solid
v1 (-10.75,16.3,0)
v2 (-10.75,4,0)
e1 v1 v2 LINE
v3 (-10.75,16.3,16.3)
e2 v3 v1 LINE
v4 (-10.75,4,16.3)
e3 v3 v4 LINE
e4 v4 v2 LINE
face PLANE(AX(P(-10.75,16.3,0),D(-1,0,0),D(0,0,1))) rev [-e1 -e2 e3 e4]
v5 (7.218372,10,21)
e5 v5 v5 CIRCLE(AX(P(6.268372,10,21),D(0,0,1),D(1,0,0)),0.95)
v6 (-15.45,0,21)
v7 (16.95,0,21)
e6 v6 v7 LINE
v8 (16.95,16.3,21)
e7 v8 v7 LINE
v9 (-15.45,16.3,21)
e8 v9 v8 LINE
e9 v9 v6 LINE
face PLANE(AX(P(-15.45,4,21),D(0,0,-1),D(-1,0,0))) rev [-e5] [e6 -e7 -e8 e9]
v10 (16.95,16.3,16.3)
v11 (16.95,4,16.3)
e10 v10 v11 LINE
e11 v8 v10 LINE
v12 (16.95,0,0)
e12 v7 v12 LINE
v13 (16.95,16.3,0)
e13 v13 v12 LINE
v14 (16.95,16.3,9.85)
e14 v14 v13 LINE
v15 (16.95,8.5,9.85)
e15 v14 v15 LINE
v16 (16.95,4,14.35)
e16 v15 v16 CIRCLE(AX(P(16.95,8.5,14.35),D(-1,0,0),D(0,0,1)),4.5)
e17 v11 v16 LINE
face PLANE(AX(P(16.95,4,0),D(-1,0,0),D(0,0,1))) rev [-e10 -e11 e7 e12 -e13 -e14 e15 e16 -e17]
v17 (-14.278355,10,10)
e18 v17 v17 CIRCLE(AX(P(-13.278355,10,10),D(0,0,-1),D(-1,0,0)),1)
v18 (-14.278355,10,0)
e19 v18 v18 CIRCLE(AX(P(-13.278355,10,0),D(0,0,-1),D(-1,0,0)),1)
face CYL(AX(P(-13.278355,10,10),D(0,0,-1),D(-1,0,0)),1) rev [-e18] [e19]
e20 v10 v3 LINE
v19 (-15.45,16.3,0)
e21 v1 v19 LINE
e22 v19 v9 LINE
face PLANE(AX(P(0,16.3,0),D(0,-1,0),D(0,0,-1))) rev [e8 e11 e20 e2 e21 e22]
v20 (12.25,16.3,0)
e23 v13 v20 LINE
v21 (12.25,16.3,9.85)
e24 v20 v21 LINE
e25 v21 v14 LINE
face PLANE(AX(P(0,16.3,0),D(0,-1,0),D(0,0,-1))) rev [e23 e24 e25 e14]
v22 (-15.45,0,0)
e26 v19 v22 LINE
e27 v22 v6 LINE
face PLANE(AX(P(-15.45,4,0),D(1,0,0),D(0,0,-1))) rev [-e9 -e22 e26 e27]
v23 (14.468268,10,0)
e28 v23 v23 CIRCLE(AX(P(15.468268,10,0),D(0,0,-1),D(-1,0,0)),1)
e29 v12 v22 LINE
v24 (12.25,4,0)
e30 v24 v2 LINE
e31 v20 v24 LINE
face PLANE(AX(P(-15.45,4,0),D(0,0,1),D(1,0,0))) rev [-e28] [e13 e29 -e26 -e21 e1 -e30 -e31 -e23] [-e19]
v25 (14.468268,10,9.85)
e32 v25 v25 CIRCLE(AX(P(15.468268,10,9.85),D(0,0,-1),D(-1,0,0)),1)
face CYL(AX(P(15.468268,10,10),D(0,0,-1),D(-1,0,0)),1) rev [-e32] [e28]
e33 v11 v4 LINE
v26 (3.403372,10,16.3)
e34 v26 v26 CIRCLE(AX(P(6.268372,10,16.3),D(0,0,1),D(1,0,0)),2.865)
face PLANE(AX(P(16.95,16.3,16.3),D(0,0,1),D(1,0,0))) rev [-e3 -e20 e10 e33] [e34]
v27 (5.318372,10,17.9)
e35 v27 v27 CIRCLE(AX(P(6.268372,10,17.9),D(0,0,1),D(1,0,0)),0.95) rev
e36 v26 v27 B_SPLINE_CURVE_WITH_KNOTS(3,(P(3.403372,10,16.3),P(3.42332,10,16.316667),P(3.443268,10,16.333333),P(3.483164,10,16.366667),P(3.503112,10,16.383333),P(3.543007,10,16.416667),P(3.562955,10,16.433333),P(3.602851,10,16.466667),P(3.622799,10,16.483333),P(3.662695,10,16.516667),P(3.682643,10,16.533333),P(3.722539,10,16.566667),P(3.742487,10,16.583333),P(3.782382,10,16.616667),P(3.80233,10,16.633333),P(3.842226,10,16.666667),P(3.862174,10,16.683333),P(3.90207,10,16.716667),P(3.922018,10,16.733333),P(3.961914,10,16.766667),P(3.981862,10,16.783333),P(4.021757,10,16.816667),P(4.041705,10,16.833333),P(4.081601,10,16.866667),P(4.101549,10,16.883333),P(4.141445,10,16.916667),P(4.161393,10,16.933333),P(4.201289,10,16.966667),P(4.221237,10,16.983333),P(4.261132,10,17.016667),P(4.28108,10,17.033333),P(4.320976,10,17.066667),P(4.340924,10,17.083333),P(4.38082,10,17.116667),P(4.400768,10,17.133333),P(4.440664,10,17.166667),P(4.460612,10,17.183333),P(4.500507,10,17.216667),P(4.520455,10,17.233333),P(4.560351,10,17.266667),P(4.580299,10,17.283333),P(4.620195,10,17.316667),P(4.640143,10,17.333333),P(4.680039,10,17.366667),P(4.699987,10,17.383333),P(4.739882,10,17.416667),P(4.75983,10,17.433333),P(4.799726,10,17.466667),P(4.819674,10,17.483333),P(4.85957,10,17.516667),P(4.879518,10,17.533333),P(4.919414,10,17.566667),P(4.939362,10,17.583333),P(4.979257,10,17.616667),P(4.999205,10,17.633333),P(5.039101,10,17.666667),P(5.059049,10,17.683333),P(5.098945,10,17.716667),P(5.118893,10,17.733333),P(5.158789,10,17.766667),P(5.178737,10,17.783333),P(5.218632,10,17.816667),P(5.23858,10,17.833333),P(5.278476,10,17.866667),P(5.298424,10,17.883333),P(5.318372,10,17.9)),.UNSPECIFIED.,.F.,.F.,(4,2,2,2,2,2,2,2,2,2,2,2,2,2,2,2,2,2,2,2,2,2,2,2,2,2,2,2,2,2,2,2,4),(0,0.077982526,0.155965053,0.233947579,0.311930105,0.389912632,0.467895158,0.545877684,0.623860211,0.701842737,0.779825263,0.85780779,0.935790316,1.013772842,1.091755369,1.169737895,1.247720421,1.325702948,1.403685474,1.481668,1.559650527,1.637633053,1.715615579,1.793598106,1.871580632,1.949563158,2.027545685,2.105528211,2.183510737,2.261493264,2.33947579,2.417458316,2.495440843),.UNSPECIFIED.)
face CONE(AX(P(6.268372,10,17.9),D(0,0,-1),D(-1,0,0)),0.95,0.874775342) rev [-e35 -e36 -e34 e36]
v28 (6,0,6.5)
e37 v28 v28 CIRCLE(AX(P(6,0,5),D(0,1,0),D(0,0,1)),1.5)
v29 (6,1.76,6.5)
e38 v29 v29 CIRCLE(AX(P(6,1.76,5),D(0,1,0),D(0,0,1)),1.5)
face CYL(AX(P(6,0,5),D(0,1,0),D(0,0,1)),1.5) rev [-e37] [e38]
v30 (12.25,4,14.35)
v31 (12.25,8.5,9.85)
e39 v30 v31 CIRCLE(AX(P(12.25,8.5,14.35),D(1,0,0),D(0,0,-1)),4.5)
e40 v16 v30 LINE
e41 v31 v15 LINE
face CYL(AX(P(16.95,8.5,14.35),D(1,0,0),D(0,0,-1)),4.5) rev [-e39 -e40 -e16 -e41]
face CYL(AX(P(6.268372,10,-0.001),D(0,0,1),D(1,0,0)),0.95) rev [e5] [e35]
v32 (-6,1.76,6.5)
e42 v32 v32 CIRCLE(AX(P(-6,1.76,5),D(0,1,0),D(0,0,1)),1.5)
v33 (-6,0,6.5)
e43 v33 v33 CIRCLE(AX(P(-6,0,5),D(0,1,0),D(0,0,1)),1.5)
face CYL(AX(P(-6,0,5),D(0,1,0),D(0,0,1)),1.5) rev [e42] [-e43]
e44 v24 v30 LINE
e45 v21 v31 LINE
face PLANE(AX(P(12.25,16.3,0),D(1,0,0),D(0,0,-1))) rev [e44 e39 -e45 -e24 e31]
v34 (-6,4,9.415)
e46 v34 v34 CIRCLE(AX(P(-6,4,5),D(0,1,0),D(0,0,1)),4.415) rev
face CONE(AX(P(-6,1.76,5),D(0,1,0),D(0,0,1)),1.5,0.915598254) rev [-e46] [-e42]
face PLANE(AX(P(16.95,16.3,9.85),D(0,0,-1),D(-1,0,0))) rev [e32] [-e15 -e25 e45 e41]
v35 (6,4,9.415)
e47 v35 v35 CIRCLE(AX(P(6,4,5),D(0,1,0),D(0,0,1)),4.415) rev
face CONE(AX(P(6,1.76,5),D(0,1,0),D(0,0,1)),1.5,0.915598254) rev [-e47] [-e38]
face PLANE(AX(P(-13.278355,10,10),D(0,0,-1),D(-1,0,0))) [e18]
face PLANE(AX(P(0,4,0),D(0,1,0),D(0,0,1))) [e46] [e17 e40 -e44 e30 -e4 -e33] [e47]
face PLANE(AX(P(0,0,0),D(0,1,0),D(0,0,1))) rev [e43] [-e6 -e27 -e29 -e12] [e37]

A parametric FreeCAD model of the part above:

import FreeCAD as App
import Part
import Sketcher


def edges_at(feature, points):
    """Names of the edges that pass closest to the given points."""
    edges = feature.Shape.Edges
    near = lambda p: min(range(len(edges)), key=lambda i: edges[i].distToShape(Part.Vertex(*p))[0])
    return sorted({f"Edge{near(p) + 1}" for p in points})

doc = App.newDocument("Part")
params = doc.addObject("Spreadsheet::Sheet", "Params")
for row, (alias, value) in enumerate([
    ("sketch1_height", "21 mm"),
    ("sketch1_width", "32.4 mm"),
    ("pad1_length", "4 mm"),
    ("sketch2_height", "21 mm"),
    ("sketch2_width", "4.7 mm"),
    ("sketch2_width2", "32.4 mm"),
    ("sketch2_height2", "9.85 mm"),
    ("pad2_length", "12.3 mm"),
    ("sketch3_diameter", "1.9 mm"),
    ("chamfer_size", "1.915 mm"),
    ("chamfer_size2", "1.6 mm"),
    ("sketch4_diameter", "2 mm"),
    ("pocket2_length", "10 mm"),
    ("fillet_radius", "4.5 mm"),
    ("sketch5_diameter", "3 mm"),
    ("chamfer2_size", "2.915 mm"),
    ("chamfer2_size2", "2.24 mm"),
], start=1):
    params.set(f"A{row}", alias)
    params.set(f"B{row}", "=" + value)
    params.setAlias(f"B{row}", alias)

body = doc.addObject("PartDesign::Body", "Body")

# Sketch on XZ plane
sketch1 = body.newObject("Sketcher::SketchObject", "Sketch")
sketch1.AttachmentSupport = (doc.getObject("XZ_Plane"), [""])
sketch1.MapMode = "FlatFace"
sketch1.addGeometry([
    Part.LineSegment(App.Vector(-15, 0, 0), App.Vector(-15, 21, 0)),
    Part.LineSegment(App.Vector(-15, 21, 0), App.Vector(17, 21, 0)),
    Part.LineSegment(App.Vector(17, 21, 0), App.Vector(17, 0, 0)),
    Part.LineSegment(App.Vector(17, 0, 0), App.Vector(-15, 0, 0)),
], False)
sketch1.addConstraint([
    Sketcher.Constraint("Coincident", 0, 2, 1, 1),
    Sketcher.Constraint("Coincident", 1, 2, 2, 1),
    Sketcher.Constraint("Coincident", 2, 2, 3, 1),
    Sketcher.Constraint("Coincident", 3, 2, 0, 1),
    Sketcher.Constraint("Vertical", 0),
    Sketcher.Constraint("Horizontal", 1),
    Sketcher.Constraint("Vertical", 2),
    Sketcher.Constraint("Horizontal", 3),
    Sketcher.Constraint("PointOnObject", 2, 2, -1),
    Sketcher.Constraint("DistanceY", 0, 1, 0, 2, 21.0),
    Sketcher.Constraint("DistanceX", 1, 1, 1, 2, 32.4),
    Sketcher.Constraint("DistanceX", 0, 2, -1, 1, 15.45),
])
sketch1.setExpression("Constraints[9]", "Params.sketch1_height")
sketch1.setExpression("Constraints[10]", "Params.sketch1_width")
pad1 = body.newObject("PartDesign::Pad", "Pad")
pad1.Profile = sketch1
pad1.setExpression("Length", "Params.pad1_length")
pad1.Reversed = True

# Sketch on XZ plane
sketch2 = body.newObject("Sketcher::SketchObject", "Sketch001")
sketch2.AttachmentSupport = (doc.getObject("XZ_Plane"), [""])
sketch2.MapMode = "FlatFace"
sketch2.AttachmentOffset = App.Placement(App.Vector(0, 0, -4), App.Rotation())
sketch2.addGeometry([
    Part.LineSegment(App.Vector(-10.8, 0, 0), App.Vector(-15.4, 0, 0)),  # 0
    Part.LineSegment(App.Vector(-15.4, 0, 0), App.Vector(-15.4, 21, 0)),  # 1
    Part.LineSegment(App.Vector(-15.4, 21, 0), App.Vector(16.9, 21, 0)),  # 2
    Part.LineSegment(App.Vector(16.9, 21, 0), App.Vector(16.9, 16.3, 0)),  # 3
    Part.LineSegment(App.Vector(16.9, 16.3, 0), App.Vector(-10.8, 16.3, 0)),  # 4
    Part.LineSegment(App.Vector(-10.8, 16.3, 0), App.Vector(-10.8, 0, 0)),  # 5
    Part.LineSegment(App.Vector(12.2, 0, 0), App.Vector(12.2, 9.8, 0)),  # 6
    Part.LineSegment(App.Vector(12.2, 9.8, 0), App.Vector(16.9, 9.8, 0)),  # 7
    Part.LineSegment(App.Vector(16.9, 9.8, 0), App.Vector(16.9, 0, 0)),  # 8
    Part.LineSegment(App.Vector(16.9, 0, 0), App.Vector(12.2, 0, 0)),  # 9
], False)
sketch2.addConstraint([
    Sketcher.Constraint("Coincident", 0, 2, 1, 1),
    Sketcher.Constraint("Coincident", 1, 2, 2, 1),
    Sketcher.Constraint("Coincident", 2, 2, 3, 1),
    Sketcher.Constraint("Coincident", 3, 2, 4, 1),
    Sketcher.Constraint("Coincident", 4, 2, 5, 1),
    Sketcher.Constraint("Coincident", 5, 2, 0, 1),
    Sketcher.Constraint("Coincident", 6, 2, 7, 1),
    Sketcher.Constraint("Coincident", 7, 2, 8, 1),
    Sketcher.Constraint("Coincident", 8, 2, 9, 1),
    Sketcher.Constraint("Coincident", 9, 2, 6, 1),
    Sketcher.Constraint("Horizontal", 0),
    Sketcher.Constraint("Vertical", 1),
    Sketcher.Constraint("Horizontal", 2),
    Sketcher.Constraint("Vertical", 3),
    Sketcher.Constraint("Horizontal", 4),
    Sketcher.Constraint("Vertical", 5),
    Sketcher.Constraint("Vertical", 6),
    Sketcher.Constraint("Horizontal", 7),
    Sketcher.Constraint("Vertical", 8),
    Sketcher.Constraint("Horizontal", 9),
    Sketcher.Constraint("PointOnObject", 0, 2, -1),
    Sketcher.Constraint("PointOnObject", 8, 2, -1),
    Sketcher.Constraint("Vertical", 3, 2, 7, 2),
    Sketcher.Constraint("Equal", 0, 7),
    Sketcher.Constraint("Equal", 9, 3),
    Sketcher.Constraint("DistanceY", 1, 1, 1, 2, 21.0),
    Sketcher.Constraint("DistanceX", 0, 2, 0, 1, 4.7),
    Sketcher.Constraint("DistanceX", 2, 1, 2, 2, 32.4),
    Sketcher.Constraint("DistanceY", 6, 1, 6, 2, 9.85),
    Sketcher.Constraint("DistanceX", 0, 2, -1, 1, 15.45),
])
sketch2.setExpression("Constraints[25]", "Params.sketch2_height")
sketch2.setExpression("Constraints[26]", "Params.sketch2_width")
sketch2.setExpression("Constraints[27]", "Params.sketch2_width2")
sketch2.setExpression("Constraints[28]", "Params.sketch2_height2")
pad2 = body.newObject("PartDesign::Pad", "Pad001")
pad2.Profile = sketch2
pad2.setExpression("Length", "Params.pad2_length")
pad2.Reversed = True

# Sketch on XY plane
sketch3 = body.newObject("Sketcher::SketchObject", "Sketch002")
sketch3.AttachmentSupport = (doc.getObject("XY_Plane"), [""])
sketch3.MapMode = "FlatFace"
sketch3.AttachmentOffset = App.Placement(App.Vector(0, 0, 21), App.Rotation())
sketch3.addGeometry(Part.Circle(App.Vector(6.3, 10, 0), App.Vector(0, 0, 1), 0.9), False)
sketch3.addConstraint([
    Sketcher.Constraint("Diameter", 0, 1.9),
    Sketcher.Constraint("DistanceY", -1, 1, 0, 3, 10.0),
    Sketcher.Constraint("DistanceX", -1, 1, 0, 3, 6.268372),
])
sketch3.setExpression("Constraints[0]", "Params.sketch3_diameter")
pocket1 = body.newObject("PartDesign::Pocket", "Pocket")
pocket1.Profile = sketch3
pocket1.Type = "UpToFirst"
doc.recompute()

chamfer = body.newObject("PartDesign::Chamfer", "Chamfer")
chamfer.Base = (pocket1, edges_at(pocket1, [(5.318, 10, 16.3)]))
chamfer.ChamferType = "Two distances"
chamfer.setExpression("Size", "Params.chamfer_size")
chamfer.setExpression("Size2", "Params.chamfer_size2")
chamfer.FlipDirection = True

# Sketch on XY plane
sketch4 = body.newObject("Sketcher::SketchObject", "Sketch003")
sketch4.AttachmentSupport = (doc.getObject("XY_Plane"), [""])
sketch4.MapMode = "FlatFace"
sketch4.addGeometry([
    Part.Circle(App.Vector(15.5, 10, 0), App.Vector(0, 0, 1), 1),
    Part.Circle(App.Vector(-13.3, 10, 0), App.Vector(0, 0, 1), 1),
], False)
sketch4.addConstraint([
    Sketcher.Constraint("Equal", 0, 1),
    Sketcher.Constraint("Horizontal", 0, 3, 1, 3),
    Sketcher.Constraint("Diameter", 0, 2.0),
    Sketcher.Constraint("DistanceY", -1, 1, 0, 3, 10.0),
    Sketcher.Constraint("DistanceX", -1, 1, 0, 3, 15.468268),
    Sketcher.Constraint("DistanceX", 1, 3, -1, 1, 13.278355),
])
sketch4.setExpression("Constraints[2]", "Params.sketch4_diameter")
pocket2 = body.newObject("PartDesign::Pocket", "Pocket001")
pocket2.Profile = sketch4
pocket2.setExpression("Length", "Params.pocket2_length")
pocket2.Reversed = True
doc.recompute()

fillet = body.newObject("PartDesign::Fillet", "Fillet")
fillet.Base = (pocket2, edges_at(pocket2, [(14.6, 4, 9.85)]))
fillet.setExpression("Radius", "Params.fillet_radius")

# Sketch on XZ plane
sketch5 = body.newObject("Sketcher::SketchObject", "Sketch004")
sketch5.AttachmentSupport = (doc.getObject("XZ_Plane"), [""])
sketch5.MapMode = "FlatFace"
sketch5.AttachmentOffset = App.Placement(App.Vector(0, 0, -4), App.Rotation())
sketch5.addGeometry([
    Part.Circle(App.Vector(-6, 5, 0), App.Vector(0, 0, 1), 1.5),
    Part.Circle(App.Vector(6, 5, 0), App.Vector(0, 0, 1), 1.5),
], False)
sketch5.addConstraint([
    Sketcher.Constraint("Equal", 0, 1),
    Sketcher.Constraint("Symmetric", 0, 3, 1, 3, -2),
    Sketcher.Constraint("Diameter", 0, 3.0),
    Sketcher.Constraint("DistanceX", 0, 3, -1, 1, 6.0),
    Sketcher.Constraint("DistanceY", -1, 1, 0, 3, 5.0),
])
sketch5.setExpression("Constraints[2]", "Params.sketch5_diameter")
pocket3 = body.newObject("PartDesign::Pocket", "Pocket002")
pocket3.Profile = sketch5
pocket3.Type = "ThroughAll"
pocket3.Reversed = True
doc.recompute()

chamfer2 = body.newObject("PartDesign::Chamfer", "Chamfer001")
chamfer2.Base = (pocket3, edges_at(pocket3, [(-6, 4, 3.5), (6, 4, 3.5)]))
chamfer2.ChamferType = "Two distances"
chamfer2.setExpression("Size", "Params.chamfer2_size")
chamfer2.setExpression("Size2", "Params.chamfer2_size2")

doc.recompute()
